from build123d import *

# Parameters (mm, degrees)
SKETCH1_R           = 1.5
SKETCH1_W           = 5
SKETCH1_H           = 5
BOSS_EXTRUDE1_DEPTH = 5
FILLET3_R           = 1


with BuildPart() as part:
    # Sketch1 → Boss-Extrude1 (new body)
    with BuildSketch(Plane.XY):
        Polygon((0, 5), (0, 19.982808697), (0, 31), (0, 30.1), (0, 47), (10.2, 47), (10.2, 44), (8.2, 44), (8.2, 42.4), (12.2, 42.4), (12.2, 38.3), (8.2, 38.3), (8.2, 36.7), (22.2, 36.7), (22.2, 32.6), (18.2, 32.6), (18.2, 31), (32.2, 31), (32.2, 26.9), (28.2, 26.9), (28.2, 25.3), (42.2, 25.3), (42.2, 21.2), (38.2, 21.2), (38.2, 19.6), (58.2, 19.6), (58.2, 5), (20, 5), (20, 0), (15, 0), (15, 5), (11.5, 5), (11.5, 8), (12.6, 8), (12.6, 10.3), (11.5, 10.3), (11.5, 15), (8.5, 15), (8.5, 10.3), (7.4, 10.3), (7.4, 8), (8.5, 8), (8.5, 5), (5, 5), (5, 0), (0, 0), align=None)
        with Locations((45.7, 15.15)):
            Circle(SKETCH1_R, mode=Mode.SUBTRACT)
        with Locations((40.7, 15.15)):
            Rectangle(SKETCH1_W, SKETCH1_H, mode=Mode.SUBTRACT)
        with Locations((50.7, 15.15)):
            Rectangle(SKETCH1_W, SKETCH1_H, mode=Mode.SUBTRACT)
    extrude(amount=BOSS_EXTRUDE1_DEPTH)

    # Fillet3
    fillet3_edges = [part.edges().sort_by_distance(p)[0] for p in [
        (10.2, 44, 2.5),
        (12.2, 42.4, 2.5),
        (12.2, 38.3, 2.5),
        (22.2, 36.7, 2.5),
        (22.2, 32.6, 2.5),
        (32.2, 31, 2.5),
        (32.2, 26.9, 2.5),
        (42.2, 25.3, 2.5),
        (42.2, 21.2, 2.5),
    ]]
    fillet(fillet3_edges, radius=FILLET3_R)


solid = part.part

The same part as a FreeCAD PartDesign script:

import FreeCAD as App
import Part
import Sketcher

V = App.Vector


def edges_at(feature, points):
    """Names of the edges that pass closest to the given points."""
    edges = feature.Shape.Edges
    near = lambda p: min(range(len(edges)), key=lambda i: edges[i].distToShape(Part.Vertex(*p))[0])
    return sorted({f"Edge{near(p) + 1}" for p in points})


def add_polygon(sketch, points):
    """Adds a closed chain of lines whose ends are joined by coincident constraints."""
    first, n = sketch.GeometryCount, len(points)
    for a, b in zip(points, points[1:] + points[:1]):
        sketch.addGeometry(Part.LineSegment(App.Vector(*a, 0), App.Vector(*b, 0)), False)
    for i in range(n):
        sketch.addConstraint(Sketcher.Constraint("Coincident", first + i, 2, first + (i + 1) % n, 1))

doc = App.newDocument("Part")
body = doc.addObject("PartDesign::Body", "Body")

sketch1 = body.newObject("Sketcher::SketchObject", "Sketch")
sketch1.AttachmentSupport = (doc.getObject("XY_Plane"), [""])
sketch1.MapMode = "FlatFace"
add_polygon(sketch1, [(0, 47), (0, 0), (5, 0), (5, 5), (8.5, 5), (8.5, 8), (7.4, 8), (7.4, 10.3), (8.5, 10.3), (8.5, 15), (11.5, 15), (11.5, 10.3), (12.6, 10.3), (12.6, 8), (11.5, 8), (11.5, 5), (15, 5), (15, 0), (20, 0), (20, 5), (58.2, 5), (58.2, 19.6), (38.2, 19.6), (38.2, 21.2), (42.2, 21.2), (42.2, 25.3), (28.2, 25.3), (28.2, 26.9), (32.2, 26.9), (32.2, 31), (18.2, 31), (18.2, 32.6), (22.2, 32.6), (22.2, 36.7), (8.2, 36.7), (8.2, 38.3), (12.2, 38.3), (12.2, 42.4), (8.2, 42.4), (8.2, 44), (10.2, 44), (10.2, 47)])
add_polygon(sketch1, [(48.2, 12.7), (48.2, 17.6), (53.2, 17.6), (53.2, 12.7)])
sketch1.addGeometry(Part.Circle(V(45.7, 15.2, 0), V(0, 0, 1), 1.5), False)
add_polygon(sketch1, [(38.2, 12.7), (38.2, 17.6), (43.2, 17.6), (43.2, 12.7)])
sketch1.addConstraint([
    Sketcher.Constraint("Vertical", 0),
    Sketcher.Constraint("Horizontal", 1),
    Sketcher.Constraint("Vertical", 2),
    Sketcher.Constraint("Horizontal", 3),
    Sketcher.Constraint("Vertical", 4),
    Sketcher.Constraint("Horizontal", 5),
    Sketcher.Constraint("Vertical", 6),
    Sketcher.Constraint("Horizontal", 7),
    Sketcher.Constraint("Vertical", 8),
    Sketcher.Constraint("Horizontal", 9),
    Sketcher.Constraint("Vertical", 10),
    Sketcher.Constraint("Horizontal", 11),
    Sketcher.Constraint("Vertical", 12),
    Sketcher.Constraint("Horizontal", 13),
    Sketcher.Constraint("Vertical", 14),
    Sketcher.Constraint("Horizontal", 15),
    Sketcher.Constraint("Vertical", 16),
    Sketcher.Constraint("Horizontal", 17),
    Sketcher.Constraint("Vertical", 18),
    Sketcher.Constraint("Horizontal", 19),
    Sketcher.Constraint("Vertical", 20),
    Sketcher.Constraint("Horizontal", 21),
    Sketcher.Constraint("Vertical", 22),
    Sketcher.Constraint("Horizontal", 23),
    Sketcher.Constraint("Vertical", 24),
    Sketcher.Constraint("Horizontal", 25),
    Sketcher.Constraint("Vertical", 26),
    Sketcher.Constraint("Horizontal", 27),
    Sketcher.Constraint("Vertical", 28),
    Sketcher.Constraint("Horizontal", 29),
    Sketcher.Constraint("Vertical", 30),
    Sketcher.Constraint("Horizontal", 31),
    Sketcher.Constraint("Vertical", 32),
    Sketcher.Constraint("Horizontal", 33),
    Sketcher.Constraint("Vertical", 34),
    Sketcher.Constraint("Horizontal", 35),
    Sketcher.Constraint("Vertical", 36),
    Sketcher.Constraint("Horizontal", 37),
    Sketcher.Constraint("Vertical", 38),
    Sketcher.Constraint("Horizontal", 39),
    Sketcher.Constraint("Vertical", 40),
    Sketcher.Constraint("Horizontal", 41),
    Sketcher.Constraint("Vertical", 42),
    Sketcher.Constraint("Horizontal", 43),
    Sketcher.Constraint("Vertical", 44),
    Sketcher.Constraint("Horizontal", 45),
    Sketcher.Constraint("Vertical", 47),
    Sketcher.Constraint("Horizontal", 48),
    Sketcher.Constraint("Vertical", 49),
    Sketcher.Constraint("Horizontal", 50),
    Sketcher.Constraint("Coincident", 0, 2, -1, 1),
    Sketcher.Constraint("PointOnObject", 16, 2, -1),
    Sketcher.Constraint("Horizontal", 7, 2, 10, 2),
    Sketcher.Constraint("Horizontal", 5, 2, 12, 2),
    Sketcher.Constraint("Horizontal", 3, 2, 14, 2),
    Sketcher.Constraint("Horizontal", 15, 2, 18, 2),
    Sketcher.Constraint("Horizontal", 43, 2, 47, 2),
    Sketcher.Constraint("Horizontal", 45, 2, 49, 2),
    Sketcher.Constraint("Vertical", 4, 2, 7, 2),
    Sketcher.Constraint("Vertical", 10, 2, 13, 2),
    Sketcher.Constraint("Vertical", 34, 2, 37, 2),
    Sketcher.Constraint("Vertical", 22, 2, 47, 2),
    Sketcher.Constraint("Equal", 7, 11),
    Sketcher.Constraint("Equal", 3, 15),
    Sketcher.Constraint("Equal", 1, 17),
    Sketcher.Constraint("Equal", 23, 27),
    Sketcher.Constraint("Equal", 25, 29),
    Sketcher.Constraint("Equal", 27, 31),
    Sketcher.Constraint("Equal", 29, 33),
    Sketcher.Constraint("Equal", 31, 35),
    Sketcher.Constraint("Equal", 17, 43),
    Sketcher.Constraint("Equal", 45, 48),
    Sketcher.Constraint("Equal", 50, 2),
    Sketcher.Constraint("Equal", 9, 4),
    Sketcher.Constraint("Equal", 22, 26),
    Sketcher.Constraint("Equal", 24, 28),
    Sketcher.Constraint("Equal", 26, 30),
    Sketcher.Constraint("Equal", 28, 32),
    Sketcher.Constraint("Equal", 30, 34),
    Sketcher.Constraint("Equal", 32, 36),
    Sketcher.Constraint("Equal", 34, 38),
    Sketcher.Constraint("Equal", 14, 40),
    Sketcher.Constraint("Equal", 18, 42),
    Sketcher.Constraint("Diameter", 46, 3.0),
    Sketcher.Constraint("DistanceX", 1, 1, 1, 2, 5.0),
    Sketcher.Constraint("DistanceX", 9, 1, 9, 2, 3.0),
    Sketcher.Constraint("DistanceX", 21, 2, 21, 1, 20.0),
    Sketcher.Constraint("DistanceX", 23, 1, 23, 2, 4.0),
    Sketcher.Constraint("DistanceX", 25, 2, 25, 1, 14.0),
    Sketcher.Constraint("DistanceX", 39, 1, 39, 2, 2.0),
    Sketcher.Constraint("DistanceY", 0, 2, 0, 1, 47.0),
    Sketcher.Constraint("DistanceX", 3, 1, 3, 2, 3.5),
    Sketcher.Constraint("DistanceX", 5, 2, 5, 1, 1.1),
    Sketcher.Constraint("DistanceX", 19, 1, 19, 2, 38.2),
    Sketcher.Constraint("DistanceY", 6, 1, 6, 2, 2.3),
    Sketcher.Constraint("DistanceY", 8, 1, 8, 2, 4.7),
    Sketcher.Constraint("DistanceY", 20, 1, 20, 2, 14.6),
    Sketcher.Constraint("DistanceY", 22, 1, 22, 2, 1.6),
    Sketcher.Constraint("DistanceX", 23, 2, 42, 2, 6.0),
    Sketcher.Constraint("DistanceX", -1, 1, 46, 3, 45.7),
    Sketcher.Constraint("DistanceY", 46, 3, 42, 2, 2.5),
    Sketcher.Constraint("DistanceY", -1, 1, 46, 3, 15.15),
])
pad1 = body.newObject("PartDesign::Pad", "Pad")
pad1.Profile = sketch1
pad1.Length = 5
doc.recompute()

fillet = body.newObject("PartDesign::Fillet", "Fillet")
fillet.Base = (pad1, edges_at(pad1, [
    (10.2, 44, 2.5),
    (12.2, 42.4, 2.5),
    (12.2, 38.3, 2.5),
    (22.2, 36.7, 2.5),
    (22.2, 32.6, 2.5),
    (32.2, 31, 2.5),
    (32.2, 26.9, 2.5),
    (42.2, 25.3, 2.5),
    (42.2, 21.2, 2.5),
]))
fillet.Radius = 1

doc.recompute()
